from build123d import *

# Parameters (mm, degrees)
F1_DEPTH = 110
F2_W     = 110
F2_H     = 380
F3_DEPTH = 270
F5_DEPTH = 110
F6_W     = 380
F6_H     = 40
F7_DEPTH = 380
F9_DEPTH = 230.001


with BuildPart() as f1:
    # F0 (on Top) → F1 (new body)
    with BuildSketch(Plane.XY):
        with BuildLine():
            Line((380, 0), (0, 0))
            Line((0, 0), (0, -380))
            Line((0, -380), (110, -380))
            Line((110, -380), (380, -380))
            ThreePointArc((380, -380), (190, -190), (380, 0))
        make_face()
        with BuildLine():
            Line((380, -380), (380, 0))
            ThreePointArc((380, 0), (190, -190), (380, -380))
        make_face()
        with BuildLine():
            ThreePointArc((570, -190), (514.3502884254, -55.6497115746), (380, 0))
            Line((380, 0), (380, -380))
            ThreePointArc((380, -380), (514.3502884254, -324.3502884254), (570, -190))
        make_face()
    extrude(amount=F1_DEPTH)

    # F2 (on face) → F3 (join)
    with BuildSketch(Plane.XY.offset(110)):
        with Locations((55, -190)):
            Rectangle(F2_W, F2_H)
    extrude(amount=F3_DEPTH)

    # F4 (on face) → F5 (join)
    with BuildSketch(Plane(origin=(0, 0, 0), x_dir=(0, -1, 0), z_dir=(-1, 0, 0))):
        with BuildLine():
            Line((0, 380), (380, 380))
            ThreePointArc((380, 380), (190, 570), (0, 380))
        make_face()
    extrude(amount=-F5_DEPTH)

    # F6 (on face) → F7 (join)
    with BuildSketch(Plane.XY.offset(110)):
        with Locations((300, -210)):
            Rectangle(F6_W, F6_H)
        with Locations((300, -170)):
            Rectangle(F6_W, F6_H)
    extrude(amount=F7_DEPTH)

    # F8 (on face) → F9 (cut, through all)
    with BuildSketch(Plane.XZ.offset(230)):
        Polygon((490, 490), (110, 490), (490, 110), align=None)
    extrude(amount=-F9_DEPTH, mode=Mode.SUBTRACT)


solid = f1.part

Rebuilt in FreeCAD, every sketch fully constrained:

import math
import FreeCAD as App
import Part
import Sketcher

doc = App.newDocument("Part")
body = doc.addObject("PartDesign::Body", "Body")

# Sketch on XY plane
sketch1 = body.newObject("Sketcher::SketchObject", "Sketch")
sketch1.AttachmentSupport = (doc.getObject("XY_Plane"), [""])
sketch1.MapMode = "FlatFace"
sketch1.addGeometry([
    Part.LineSegment(App.Vector(380, 0, 0), App.Vector(0, 0, 0)),  # 0
    Part.LineSegment(App.Vector(0, 0, 0), App.Vector(0, -380, 0)),  # 1
    Part.LineSegment(App.Vector(0, -380, 0), App.Vector(380, -380, 0)),  # 2
    Part.ArcOfCircle(Part.Circle(App.Vector(380, -190, 0), App.Vector(0, 0, 1), 190), math.radians(-90), math.radians(0)),  # 3
    Part.ArcOfCircle(Part.Circle(App.Vector(380, -190, 0), App.Vector(0, 0, 1), 190), math.radians(0), math.radians(90)),  # 4
], False)
sketch1.addConstraint([
    Sketcher.Constraint("Coincident", 0, 2, 1, 1),
    Sketcher.Constraint("Coincident", 1, 2, 2, 1),
    Sketcher.Constraint("Tangent", 2, 2, 3, 1),
    Sketcher.Constraint("Tangent", 3, 2, 4, 1),
    Sketcher.Constraint("Tangent", 4, 2, 0, 1),
    Sketcher.Constraint("Horizontal", 0),
    Sketcher.Constraint("Vertical", 1),
    Sketcher.Constraint("Horizontal", 2),
    Sketcher.Constraint("Coincident", 0, 2, -1, 1),
    Sketcher.Constraint("Equal", 3, 4),
    Sketcher.Constraint("Horizontal", 4, 3, 3, 2),
    Sketcher.Constraint("Equal", 2, 1),
    Sketcher.Constraint("Radius", 3, 190.0),
])
pad1 = body.newObject("PartDesign::Pad", "Pad")
pad1.Profile = sketch1
pad1.Length = 110

# Sketch on XY plane
sketch2 = body.newObject("Sketcher::SketchObject", "Sketch001")
sketch2.AttachmentSupport = (doc.getObject("XY_Plane"), [""])
sketch2.MapMode = "FlatFace"
sketch2.AttachmentOffset = App.Placement(App.Vector(0, 0, 110), App.Rotation())
sketch2.addGeometry([
    Part.LineSegment(App.Vector(0, 0, 0), App.Vector(0, -380, 0)),
    Part.LineSegment(App.Vector(0, -380, 0), App.Vector(110, -380, 0)),
    Part.LineSegment(App.Vector(110, -380, 0), App.Vector(110, 0, 0)),
    Part.LineSegment(App.Vector(110, 0, 0), App.Vector(0, 0, 0)),
], False)
sketch2.addConstraint([
    Sketcher.Constraint("Coincident", 0, 2, 1, 1),
    Sketcher.Constraint("Coincident", 1, 2, 2, 1),
    Sketcher.Constraint("Coincident", 2, 2, 3, 1),
    Sketcher.Constraint("Coincident", 3, 2, 0, 1),
    Sketcher.Constraint("Vertical", 0),
    Sketcher.Constraint("Horizontal", 1),
    Sketcher.Constraint("Vertical", 2),
    Sketcher.Constraint("Horizontal", 3),
    Sketcher.Constraint("Coincident", 3, 2, -1, 1),
    Sketcher.Constraint("DistanceX", 1, 1, 1, 2, 110.0),
    Sketcher.Constraint("DistanceY", 0, 2, 0, 1, 380.0),
])
pad2 = body.newObject("PartDesign::Pad", "Pad001")
pad2.Profile = sketch2
pad2.Length = 270

# Sketch on YZ plane
sketch3 = body.newObject("Sketcher::SketchObject", "Sketch002")
sketch3.AttachmentSupport = (doc.getObject("YZ_Plane"), [""])
sketch3.MapMode = "FlatFace"
sketch3.addGeometry([
    Part.LineSegment(App.Vector(0, 380, 0), App.Vector(-380, 380, 0)),
    Part.ArcOfCircle(Part.Circle(App.Vector(-190, 380, 0), App.Vector(0, 0, 1), 190), math.radians(0), math.radians(180)),
], False)
sketch3.addConstraint([
    Sketcher.Constraint("Coincident", 0, 1, 1, 1),
    Sketcher.Constraint("Coincident", 1, 2, 0, 2),
    Sketcher.Constraint("Horizontal", 0),
    Sketcher.Constraint("PointOnObject", 0, 1, -2),
    Sketcher.Constraint("Horizontal", 1, 3, 0, 1),
    Sketcher.Constraint("Radius", 1, 190.0),
    Sketcher.Constraint("DistanceY", -1, 1, 1, 3, 380.0),
])
pad3 = body.newObject("PartDesign::Pad", "Pad002")
pad3.Profile = sketch3
pad3.Length = 110

# Sketch on XY plane
sketch4 = body.newObject("Sketcher::SketchObject", "Sketch003")
sketch4.AttachmentSupport = (doc.getObject("XY_Plane"), [""])
sketch4.MapMode = "FlatFace"
sketch4.AttachmentOffset = App.Placement(App.Vector(0, 0, 110), App.Rotation())
sketch4.addGeometry([
    Part.LineSegment(App.Vector(110, -230, 0), App.Vector(490, -230, 0)),
    Part.LineSegment(App.Vector(490, -230, 0), App.Vector(490, -150, 0)),
    Part.LineSegment(App.Vector(490, -150, 0), App.Vector(110, -150, 0)),
    Part.LineSegment(App.Vector(110, -150, 0), App.Vector(110, -230, 0)),
], False)
sketch4.addConstraint([
    Sketcher.Constraint("Coincident", 0, 2, 1, 1),
    Sketcher.Constraint("Coincident", 1, 2, 2, 1),
    Sketcher.Constraint("Coincident", 2, 2, 3, 1),
    Sketcher.Constraint("Coincident", 3, 2, 0, 1),
    Sketcher.Constraint("Horizontal", 0),
    Sketcher.Constraint("Vertical", 1),
    Sketcher.Constraint("Horizontal", 2),
    Sketcher.Constraint("Vertical", 3),
    Sketcher.Constraint("DistanceX", 0, 1, 0, 2, 380.0),
    Sketcher.Constraint("DistanceY", 1, 1, 1, 2, 80.0),
    Sketcher.Constraint("DistanceX", -1, 1, 0, 2, 490.0),
    Sketcher.Constraint("DistanceY", 0, 2, -1, 1, 230.0),
])
pad4 = body.newObject("PartDesign::Pad", "Pad003")
pad4.Profile = sketch4
pad4.Length = 380

# Sketch on XZ plane
sketch5 = body.newObject("Sketcher::SketchObject", "Sketch004")
sketch5.AttachmentSupport = (doc.getObject("XZ_Plane"), [""])
sketch5.MapMode = "FlatFace"
sketch5.AttachmentOffset = App.Placement(App.Vector(0, 0, 230), App.Rotation())
sketch5.addGeometry([
    Part.LineSegment(App.Vector(490, 490, 0), App.Vector(110, 490, 0)),
    Part.LineSegment(App.Vector(110, 490, 0), App.Vector(490, 110, 0)),
    Part.LineSegment(App.Vector(490, 110, 0), App.Vector(490, 490, 0)),
], False)
sketch5.addConstraint([
    Sketcher.Constraint("Coincident", 0, 2, 1, 1),
    Sketcher.Constraint("Coincident", 1, 2, 2, 1),
    Sketcher.Constraint("Coincident", 2, 2, 0, 1),
    Sketcher.Constraint("Horizontal", 0),
    Sketcher.Constraint("Vertical", 2),
    Sketcher.Constraint("Equal", 0, 2),
    Sketcher.Constraint("DistanceX", 0, 2, 0, 1, 380.0),
    Sketcher.Constraint("DistanceX", -1, 1, 0, 2, 110.0),
    Sketcher.Constraint("DistanceY", -1, 1, 0, 2, 490.0),
])
pocket1 = body.newObject("PartDesign::Pocket", "Pocket")
pocket1.Profile = sketch5
pocket1.Type = "ThroughAll"

doc.recompute()
